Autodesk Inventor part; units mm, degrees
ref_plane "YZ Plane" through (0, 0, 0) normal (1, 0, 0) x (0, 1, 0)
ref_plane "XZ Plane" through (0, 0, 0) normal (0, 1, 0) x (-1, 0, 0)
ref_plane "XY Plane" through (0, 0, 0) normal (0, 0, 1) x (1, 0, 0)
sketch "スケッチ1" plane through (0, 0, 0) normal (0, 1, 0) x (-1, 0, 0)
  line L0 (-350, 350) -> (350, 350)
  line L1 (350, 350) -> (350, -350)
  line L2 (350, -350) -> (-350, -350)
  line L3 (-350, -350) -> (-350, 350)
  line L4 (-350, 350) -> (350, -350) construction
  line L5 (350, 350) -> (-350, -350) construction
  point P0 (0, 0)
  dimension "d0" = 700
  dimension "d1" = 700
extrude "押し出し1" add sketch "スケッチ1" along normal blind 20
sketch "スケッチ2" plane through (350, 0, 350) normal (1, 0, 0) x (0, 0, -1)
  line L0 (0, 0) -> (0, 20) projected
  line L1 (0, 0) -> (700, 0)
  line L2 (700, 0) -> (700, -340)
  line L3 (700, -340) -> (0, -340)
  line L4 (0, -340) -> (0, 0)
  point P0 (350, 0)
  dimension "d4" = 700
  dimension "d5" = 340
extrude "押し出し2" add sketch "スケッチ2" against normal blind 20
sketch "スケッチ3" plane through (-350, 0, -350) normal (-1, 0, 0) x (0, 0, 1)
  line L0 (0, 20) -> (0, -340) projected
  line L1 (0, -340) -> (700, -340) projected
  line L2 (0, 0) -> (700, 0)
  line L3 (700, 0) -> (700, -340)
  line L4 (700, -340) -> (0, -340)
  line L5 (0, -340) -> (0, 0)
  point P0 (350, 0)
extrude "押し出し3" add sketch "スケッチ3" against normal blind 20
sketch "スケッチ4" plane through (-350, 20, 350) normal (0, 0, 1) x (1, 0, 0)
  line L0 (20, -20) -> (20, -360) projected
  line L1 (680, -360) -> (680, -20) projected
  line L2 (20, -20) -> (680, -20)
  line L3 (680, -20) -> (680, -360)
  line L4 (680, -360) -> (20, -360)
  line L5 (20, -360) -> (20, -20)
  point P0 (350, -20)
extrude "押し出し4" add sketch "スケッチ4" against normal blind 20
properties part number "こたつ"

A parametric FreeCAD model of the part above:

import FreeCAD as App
import Part
import Sketcher
Q = App.Units.Quantity

doc = App.newDocument("Part")
body = doc.addObject("PartDesign::Body", "Body")

sketch1 = body.newObject("Sketcher::SketchObject", "Sketch")
sketch1.AttachmentSupport = (doc.getObject("XZ_Plane"), [""])
sketch1.MapMode = "FlatFace"
sketch1.addGeometry([
    Part.LineSegment(App.Vector(-350, 350, 0), App.Vector(350, 350, 0)),
    Part.LineSegment(App.Vector(350, 350, 0), App.Vector(350, -350, 0)),
    Part.LineSegment(App.Vector(350, -350, 0), App.Vector(-350, -350, 0)),
    Part.LineSegment(App.Vector(-350, -350, 0), App.Vector(-350, 350, 0)),
], False)
sketch1.addConstraint([
    Sketcher.Constraint("Coincident", 0, 2, 1, 1),
    Sketcher.Constraint("Coincident", 1, 2, 2, 1),
    Sketcher.Constraint("Coincident", 2, 2, 3, 1),
    Sketcher.Constraint("Coincident", 3, 2, 0, 1),
    Sketcher.Constraint("Horizontal", 0),
    Sketcher.Constraint("Vertical", 1),
    Sketcher.Constraint("Horizontal", 2),
    Sketcher.Constraint("Vertical", 3),
    Sketcher.Constraint("Symmetric", 0, 2, 2, 2, -1, 1),
    Sketcher.Constraint("Equal", 2, 1),
    Sketcher.Constraint("DistanceX", 0, 1, 0, 2, Q("700 mm")),
])
pad1 = body.newObject("PartDesign::Pad", "Pad")
pad1.Profile = sketch1
pad1.Length = 20
pad1.Reversed = True

sketch2 = body.newObject("Sketcher::SketchObject", "Sketch001")
sketch2.AttachmentSupport = (doc.getObject("YZ_Plane"), [""])
sketch2.MapMode = "FlatFace"
sketch2.AttachmentOffset = App.Placement(App.Vector(0, 0, 350), App.Rotation())
sketch2.addGeometry([
    Part.LineSegment(App.Vector(0, -350, 0), App.Vector(0, 350, 0)),
    Part.LineSegment(App.Vector(0, 350, 0), App.Vector(-340, 350, 0)),
    Part.LineSegment(App.Vector(-340, 350, 0), App.Vector(-340, -350, 0)),
    Part.LineSegment(App.Vector(-340, -350, 0), App.Vector(0, -350, 0)),
], False)
sketch2.addConstraint([
    Sketcher.Constraint("Coincident", 0, 2, 1, 1),
    Sketcher.Constraint("Coincident", 1, 2, 2, 1),
    Sketcher.Constraint("Coincident", 2, 2, 3, 1),
    Sketcher.Constraint("Coincident", 3, 2, 0, 1),
    Sketcher.Constraint("Vertical", 0),
    Sketcher.Constraint("Horizontal", 1),
    Sketcher.Constraint("Vertical", 2),
    Sketcher.Constraint("Horizontal", 3),
    Sketcher.Constraint("Symmetric", 0, 2, 3, 2, -1, 1),
    Sketcher.Constraint("DistanceX", 1, 2, 1, 1, Q("340 mm")),
    Sketcher.Constraint("DistanceY", 0, 1, 0, 2, Q("700 mm")),
])
pad2 = body.newObject("PartDesign::Pad", "Pad001")
pad2.Profile = sketch2
pad2.Length = 20
pad2.Reversed = True

sketch3 = body.newObject("Sketcher::SketchObject", "Sketch002")
sketch3.AttachmentSupport = (doc.getObject("YZ_Plane"), [""])
sketch3.MapMode = "FlatFace"
sketch3.AttachmentOffset = App.Placement(App.Vector(0, 0, -350), App.Rotation())
sketch3.addGeometry([
    Part.LineSegment(App.Vector(0, 350, 0), App.Vector(0, -350, 0)),
    Part.LineSegment(App.Vector(0, -350, 0), App.Vector(-340, -350, 0)),
    Part.LineSegment(App.Vector(-340, -350, 0), App.Vector(-340, 350, 0)),
    Part.LineSegment(App.Vector(-340, 350, 0), App.Vector(0, 350, 0)),
], False)
sketch3.addConstraint([
    Sketcher.Constraint("Coincident", 0, 2, 1, 1),
    Sketcher.Constraint("Coincident", 1, 2, 2, 1),
    Sketcher.Constraint("Coincident", 2, 2, 3, 1),
    Sketcher.Constraint("Coincident", 3, 2, 0, 1),
    Sketcher.Constraint("Vertical", 0),
    Sketcher.Constraint("Horizontal", 1),
    Sketcher.Constraint("Vertical", 2),
    Sketcher.Constraint("Horizontal", 3),
    Sketcher.Constraint("Symmetric", 0, 2, 3, 2, -1, 1),
    Sketcher.Constraint("DistanceX", 1, 2, 1, 1, Q("340 mm")),
    Sketcher.Constraint("DistanceY", 0, 2, 0, 1, Q("700 mm")),
])
pad3 = body.newObject("PartDesign::Pad", "Pad002")
pad3.Profile = sketch3
pad3.Length = 20

sketch4 = body.newObject("Sketcher::SketchObject", "Sketch003")
sketch4.AttachmentSupport = (doc.getObject("XY_Plane"), [""])
sketch4.MapMode = "FlatFace"
sketch4.AttachmentOffset = App.Placement(App.Vector(0, 0, 350), App.Rotation())
sketch4.addGeometry([
    Part.LineSegment(App.Vector(330, 0, 0), App.Vector(-330, 0, 0)),
    Part.LineSegment(App.Vector(-330, 0, 0), App.Vector(-330, -340, 0)),
    Part.LineSegment(App.Vector(-330, -340, 0), App.Vector(330, -340, 0)),
    Part.LineSegment(App.Vector(330, -340, 0), App.Vector(330, 0, 0)),
], False)
sketch4.addConstraint([
    Sketcher.Constraint("Coincident", 0, 2, 1, 1),
    Sketcher.Constraint("Coincident", 1, 2, 2, 1),
    Sketcher.Constraint("Coincident", 2, 2, 3, 1),
    Sketcher.Constraint("Coincident", 3, 2, 0, 1),
    Sketcher.Constraint("Horizontal", 0),
    Sketcher.Constraint("Vertical", 1),
    Sketcher.Constraint("Horizontal", 2),
    Sketcher.Constraint("Vertical", 3),
    Sketcher.Constraint("Symmetric", 0, 2, 3, 2, -1, 1),
    Sketcher.Constraint("DistanceX", 0, 2, 0, 1, Q("660 mm")),
    Sketcher.Constraint("DistanceY", 1, 2, 1, 1, Q("340 mm")),
])
pad4 = body.newObject("PartDesign::Pad", "Pad003")
pad4.Profile = sketch4
pad4.Length = 20
pad4.Reversed = True

doc.recompute()
